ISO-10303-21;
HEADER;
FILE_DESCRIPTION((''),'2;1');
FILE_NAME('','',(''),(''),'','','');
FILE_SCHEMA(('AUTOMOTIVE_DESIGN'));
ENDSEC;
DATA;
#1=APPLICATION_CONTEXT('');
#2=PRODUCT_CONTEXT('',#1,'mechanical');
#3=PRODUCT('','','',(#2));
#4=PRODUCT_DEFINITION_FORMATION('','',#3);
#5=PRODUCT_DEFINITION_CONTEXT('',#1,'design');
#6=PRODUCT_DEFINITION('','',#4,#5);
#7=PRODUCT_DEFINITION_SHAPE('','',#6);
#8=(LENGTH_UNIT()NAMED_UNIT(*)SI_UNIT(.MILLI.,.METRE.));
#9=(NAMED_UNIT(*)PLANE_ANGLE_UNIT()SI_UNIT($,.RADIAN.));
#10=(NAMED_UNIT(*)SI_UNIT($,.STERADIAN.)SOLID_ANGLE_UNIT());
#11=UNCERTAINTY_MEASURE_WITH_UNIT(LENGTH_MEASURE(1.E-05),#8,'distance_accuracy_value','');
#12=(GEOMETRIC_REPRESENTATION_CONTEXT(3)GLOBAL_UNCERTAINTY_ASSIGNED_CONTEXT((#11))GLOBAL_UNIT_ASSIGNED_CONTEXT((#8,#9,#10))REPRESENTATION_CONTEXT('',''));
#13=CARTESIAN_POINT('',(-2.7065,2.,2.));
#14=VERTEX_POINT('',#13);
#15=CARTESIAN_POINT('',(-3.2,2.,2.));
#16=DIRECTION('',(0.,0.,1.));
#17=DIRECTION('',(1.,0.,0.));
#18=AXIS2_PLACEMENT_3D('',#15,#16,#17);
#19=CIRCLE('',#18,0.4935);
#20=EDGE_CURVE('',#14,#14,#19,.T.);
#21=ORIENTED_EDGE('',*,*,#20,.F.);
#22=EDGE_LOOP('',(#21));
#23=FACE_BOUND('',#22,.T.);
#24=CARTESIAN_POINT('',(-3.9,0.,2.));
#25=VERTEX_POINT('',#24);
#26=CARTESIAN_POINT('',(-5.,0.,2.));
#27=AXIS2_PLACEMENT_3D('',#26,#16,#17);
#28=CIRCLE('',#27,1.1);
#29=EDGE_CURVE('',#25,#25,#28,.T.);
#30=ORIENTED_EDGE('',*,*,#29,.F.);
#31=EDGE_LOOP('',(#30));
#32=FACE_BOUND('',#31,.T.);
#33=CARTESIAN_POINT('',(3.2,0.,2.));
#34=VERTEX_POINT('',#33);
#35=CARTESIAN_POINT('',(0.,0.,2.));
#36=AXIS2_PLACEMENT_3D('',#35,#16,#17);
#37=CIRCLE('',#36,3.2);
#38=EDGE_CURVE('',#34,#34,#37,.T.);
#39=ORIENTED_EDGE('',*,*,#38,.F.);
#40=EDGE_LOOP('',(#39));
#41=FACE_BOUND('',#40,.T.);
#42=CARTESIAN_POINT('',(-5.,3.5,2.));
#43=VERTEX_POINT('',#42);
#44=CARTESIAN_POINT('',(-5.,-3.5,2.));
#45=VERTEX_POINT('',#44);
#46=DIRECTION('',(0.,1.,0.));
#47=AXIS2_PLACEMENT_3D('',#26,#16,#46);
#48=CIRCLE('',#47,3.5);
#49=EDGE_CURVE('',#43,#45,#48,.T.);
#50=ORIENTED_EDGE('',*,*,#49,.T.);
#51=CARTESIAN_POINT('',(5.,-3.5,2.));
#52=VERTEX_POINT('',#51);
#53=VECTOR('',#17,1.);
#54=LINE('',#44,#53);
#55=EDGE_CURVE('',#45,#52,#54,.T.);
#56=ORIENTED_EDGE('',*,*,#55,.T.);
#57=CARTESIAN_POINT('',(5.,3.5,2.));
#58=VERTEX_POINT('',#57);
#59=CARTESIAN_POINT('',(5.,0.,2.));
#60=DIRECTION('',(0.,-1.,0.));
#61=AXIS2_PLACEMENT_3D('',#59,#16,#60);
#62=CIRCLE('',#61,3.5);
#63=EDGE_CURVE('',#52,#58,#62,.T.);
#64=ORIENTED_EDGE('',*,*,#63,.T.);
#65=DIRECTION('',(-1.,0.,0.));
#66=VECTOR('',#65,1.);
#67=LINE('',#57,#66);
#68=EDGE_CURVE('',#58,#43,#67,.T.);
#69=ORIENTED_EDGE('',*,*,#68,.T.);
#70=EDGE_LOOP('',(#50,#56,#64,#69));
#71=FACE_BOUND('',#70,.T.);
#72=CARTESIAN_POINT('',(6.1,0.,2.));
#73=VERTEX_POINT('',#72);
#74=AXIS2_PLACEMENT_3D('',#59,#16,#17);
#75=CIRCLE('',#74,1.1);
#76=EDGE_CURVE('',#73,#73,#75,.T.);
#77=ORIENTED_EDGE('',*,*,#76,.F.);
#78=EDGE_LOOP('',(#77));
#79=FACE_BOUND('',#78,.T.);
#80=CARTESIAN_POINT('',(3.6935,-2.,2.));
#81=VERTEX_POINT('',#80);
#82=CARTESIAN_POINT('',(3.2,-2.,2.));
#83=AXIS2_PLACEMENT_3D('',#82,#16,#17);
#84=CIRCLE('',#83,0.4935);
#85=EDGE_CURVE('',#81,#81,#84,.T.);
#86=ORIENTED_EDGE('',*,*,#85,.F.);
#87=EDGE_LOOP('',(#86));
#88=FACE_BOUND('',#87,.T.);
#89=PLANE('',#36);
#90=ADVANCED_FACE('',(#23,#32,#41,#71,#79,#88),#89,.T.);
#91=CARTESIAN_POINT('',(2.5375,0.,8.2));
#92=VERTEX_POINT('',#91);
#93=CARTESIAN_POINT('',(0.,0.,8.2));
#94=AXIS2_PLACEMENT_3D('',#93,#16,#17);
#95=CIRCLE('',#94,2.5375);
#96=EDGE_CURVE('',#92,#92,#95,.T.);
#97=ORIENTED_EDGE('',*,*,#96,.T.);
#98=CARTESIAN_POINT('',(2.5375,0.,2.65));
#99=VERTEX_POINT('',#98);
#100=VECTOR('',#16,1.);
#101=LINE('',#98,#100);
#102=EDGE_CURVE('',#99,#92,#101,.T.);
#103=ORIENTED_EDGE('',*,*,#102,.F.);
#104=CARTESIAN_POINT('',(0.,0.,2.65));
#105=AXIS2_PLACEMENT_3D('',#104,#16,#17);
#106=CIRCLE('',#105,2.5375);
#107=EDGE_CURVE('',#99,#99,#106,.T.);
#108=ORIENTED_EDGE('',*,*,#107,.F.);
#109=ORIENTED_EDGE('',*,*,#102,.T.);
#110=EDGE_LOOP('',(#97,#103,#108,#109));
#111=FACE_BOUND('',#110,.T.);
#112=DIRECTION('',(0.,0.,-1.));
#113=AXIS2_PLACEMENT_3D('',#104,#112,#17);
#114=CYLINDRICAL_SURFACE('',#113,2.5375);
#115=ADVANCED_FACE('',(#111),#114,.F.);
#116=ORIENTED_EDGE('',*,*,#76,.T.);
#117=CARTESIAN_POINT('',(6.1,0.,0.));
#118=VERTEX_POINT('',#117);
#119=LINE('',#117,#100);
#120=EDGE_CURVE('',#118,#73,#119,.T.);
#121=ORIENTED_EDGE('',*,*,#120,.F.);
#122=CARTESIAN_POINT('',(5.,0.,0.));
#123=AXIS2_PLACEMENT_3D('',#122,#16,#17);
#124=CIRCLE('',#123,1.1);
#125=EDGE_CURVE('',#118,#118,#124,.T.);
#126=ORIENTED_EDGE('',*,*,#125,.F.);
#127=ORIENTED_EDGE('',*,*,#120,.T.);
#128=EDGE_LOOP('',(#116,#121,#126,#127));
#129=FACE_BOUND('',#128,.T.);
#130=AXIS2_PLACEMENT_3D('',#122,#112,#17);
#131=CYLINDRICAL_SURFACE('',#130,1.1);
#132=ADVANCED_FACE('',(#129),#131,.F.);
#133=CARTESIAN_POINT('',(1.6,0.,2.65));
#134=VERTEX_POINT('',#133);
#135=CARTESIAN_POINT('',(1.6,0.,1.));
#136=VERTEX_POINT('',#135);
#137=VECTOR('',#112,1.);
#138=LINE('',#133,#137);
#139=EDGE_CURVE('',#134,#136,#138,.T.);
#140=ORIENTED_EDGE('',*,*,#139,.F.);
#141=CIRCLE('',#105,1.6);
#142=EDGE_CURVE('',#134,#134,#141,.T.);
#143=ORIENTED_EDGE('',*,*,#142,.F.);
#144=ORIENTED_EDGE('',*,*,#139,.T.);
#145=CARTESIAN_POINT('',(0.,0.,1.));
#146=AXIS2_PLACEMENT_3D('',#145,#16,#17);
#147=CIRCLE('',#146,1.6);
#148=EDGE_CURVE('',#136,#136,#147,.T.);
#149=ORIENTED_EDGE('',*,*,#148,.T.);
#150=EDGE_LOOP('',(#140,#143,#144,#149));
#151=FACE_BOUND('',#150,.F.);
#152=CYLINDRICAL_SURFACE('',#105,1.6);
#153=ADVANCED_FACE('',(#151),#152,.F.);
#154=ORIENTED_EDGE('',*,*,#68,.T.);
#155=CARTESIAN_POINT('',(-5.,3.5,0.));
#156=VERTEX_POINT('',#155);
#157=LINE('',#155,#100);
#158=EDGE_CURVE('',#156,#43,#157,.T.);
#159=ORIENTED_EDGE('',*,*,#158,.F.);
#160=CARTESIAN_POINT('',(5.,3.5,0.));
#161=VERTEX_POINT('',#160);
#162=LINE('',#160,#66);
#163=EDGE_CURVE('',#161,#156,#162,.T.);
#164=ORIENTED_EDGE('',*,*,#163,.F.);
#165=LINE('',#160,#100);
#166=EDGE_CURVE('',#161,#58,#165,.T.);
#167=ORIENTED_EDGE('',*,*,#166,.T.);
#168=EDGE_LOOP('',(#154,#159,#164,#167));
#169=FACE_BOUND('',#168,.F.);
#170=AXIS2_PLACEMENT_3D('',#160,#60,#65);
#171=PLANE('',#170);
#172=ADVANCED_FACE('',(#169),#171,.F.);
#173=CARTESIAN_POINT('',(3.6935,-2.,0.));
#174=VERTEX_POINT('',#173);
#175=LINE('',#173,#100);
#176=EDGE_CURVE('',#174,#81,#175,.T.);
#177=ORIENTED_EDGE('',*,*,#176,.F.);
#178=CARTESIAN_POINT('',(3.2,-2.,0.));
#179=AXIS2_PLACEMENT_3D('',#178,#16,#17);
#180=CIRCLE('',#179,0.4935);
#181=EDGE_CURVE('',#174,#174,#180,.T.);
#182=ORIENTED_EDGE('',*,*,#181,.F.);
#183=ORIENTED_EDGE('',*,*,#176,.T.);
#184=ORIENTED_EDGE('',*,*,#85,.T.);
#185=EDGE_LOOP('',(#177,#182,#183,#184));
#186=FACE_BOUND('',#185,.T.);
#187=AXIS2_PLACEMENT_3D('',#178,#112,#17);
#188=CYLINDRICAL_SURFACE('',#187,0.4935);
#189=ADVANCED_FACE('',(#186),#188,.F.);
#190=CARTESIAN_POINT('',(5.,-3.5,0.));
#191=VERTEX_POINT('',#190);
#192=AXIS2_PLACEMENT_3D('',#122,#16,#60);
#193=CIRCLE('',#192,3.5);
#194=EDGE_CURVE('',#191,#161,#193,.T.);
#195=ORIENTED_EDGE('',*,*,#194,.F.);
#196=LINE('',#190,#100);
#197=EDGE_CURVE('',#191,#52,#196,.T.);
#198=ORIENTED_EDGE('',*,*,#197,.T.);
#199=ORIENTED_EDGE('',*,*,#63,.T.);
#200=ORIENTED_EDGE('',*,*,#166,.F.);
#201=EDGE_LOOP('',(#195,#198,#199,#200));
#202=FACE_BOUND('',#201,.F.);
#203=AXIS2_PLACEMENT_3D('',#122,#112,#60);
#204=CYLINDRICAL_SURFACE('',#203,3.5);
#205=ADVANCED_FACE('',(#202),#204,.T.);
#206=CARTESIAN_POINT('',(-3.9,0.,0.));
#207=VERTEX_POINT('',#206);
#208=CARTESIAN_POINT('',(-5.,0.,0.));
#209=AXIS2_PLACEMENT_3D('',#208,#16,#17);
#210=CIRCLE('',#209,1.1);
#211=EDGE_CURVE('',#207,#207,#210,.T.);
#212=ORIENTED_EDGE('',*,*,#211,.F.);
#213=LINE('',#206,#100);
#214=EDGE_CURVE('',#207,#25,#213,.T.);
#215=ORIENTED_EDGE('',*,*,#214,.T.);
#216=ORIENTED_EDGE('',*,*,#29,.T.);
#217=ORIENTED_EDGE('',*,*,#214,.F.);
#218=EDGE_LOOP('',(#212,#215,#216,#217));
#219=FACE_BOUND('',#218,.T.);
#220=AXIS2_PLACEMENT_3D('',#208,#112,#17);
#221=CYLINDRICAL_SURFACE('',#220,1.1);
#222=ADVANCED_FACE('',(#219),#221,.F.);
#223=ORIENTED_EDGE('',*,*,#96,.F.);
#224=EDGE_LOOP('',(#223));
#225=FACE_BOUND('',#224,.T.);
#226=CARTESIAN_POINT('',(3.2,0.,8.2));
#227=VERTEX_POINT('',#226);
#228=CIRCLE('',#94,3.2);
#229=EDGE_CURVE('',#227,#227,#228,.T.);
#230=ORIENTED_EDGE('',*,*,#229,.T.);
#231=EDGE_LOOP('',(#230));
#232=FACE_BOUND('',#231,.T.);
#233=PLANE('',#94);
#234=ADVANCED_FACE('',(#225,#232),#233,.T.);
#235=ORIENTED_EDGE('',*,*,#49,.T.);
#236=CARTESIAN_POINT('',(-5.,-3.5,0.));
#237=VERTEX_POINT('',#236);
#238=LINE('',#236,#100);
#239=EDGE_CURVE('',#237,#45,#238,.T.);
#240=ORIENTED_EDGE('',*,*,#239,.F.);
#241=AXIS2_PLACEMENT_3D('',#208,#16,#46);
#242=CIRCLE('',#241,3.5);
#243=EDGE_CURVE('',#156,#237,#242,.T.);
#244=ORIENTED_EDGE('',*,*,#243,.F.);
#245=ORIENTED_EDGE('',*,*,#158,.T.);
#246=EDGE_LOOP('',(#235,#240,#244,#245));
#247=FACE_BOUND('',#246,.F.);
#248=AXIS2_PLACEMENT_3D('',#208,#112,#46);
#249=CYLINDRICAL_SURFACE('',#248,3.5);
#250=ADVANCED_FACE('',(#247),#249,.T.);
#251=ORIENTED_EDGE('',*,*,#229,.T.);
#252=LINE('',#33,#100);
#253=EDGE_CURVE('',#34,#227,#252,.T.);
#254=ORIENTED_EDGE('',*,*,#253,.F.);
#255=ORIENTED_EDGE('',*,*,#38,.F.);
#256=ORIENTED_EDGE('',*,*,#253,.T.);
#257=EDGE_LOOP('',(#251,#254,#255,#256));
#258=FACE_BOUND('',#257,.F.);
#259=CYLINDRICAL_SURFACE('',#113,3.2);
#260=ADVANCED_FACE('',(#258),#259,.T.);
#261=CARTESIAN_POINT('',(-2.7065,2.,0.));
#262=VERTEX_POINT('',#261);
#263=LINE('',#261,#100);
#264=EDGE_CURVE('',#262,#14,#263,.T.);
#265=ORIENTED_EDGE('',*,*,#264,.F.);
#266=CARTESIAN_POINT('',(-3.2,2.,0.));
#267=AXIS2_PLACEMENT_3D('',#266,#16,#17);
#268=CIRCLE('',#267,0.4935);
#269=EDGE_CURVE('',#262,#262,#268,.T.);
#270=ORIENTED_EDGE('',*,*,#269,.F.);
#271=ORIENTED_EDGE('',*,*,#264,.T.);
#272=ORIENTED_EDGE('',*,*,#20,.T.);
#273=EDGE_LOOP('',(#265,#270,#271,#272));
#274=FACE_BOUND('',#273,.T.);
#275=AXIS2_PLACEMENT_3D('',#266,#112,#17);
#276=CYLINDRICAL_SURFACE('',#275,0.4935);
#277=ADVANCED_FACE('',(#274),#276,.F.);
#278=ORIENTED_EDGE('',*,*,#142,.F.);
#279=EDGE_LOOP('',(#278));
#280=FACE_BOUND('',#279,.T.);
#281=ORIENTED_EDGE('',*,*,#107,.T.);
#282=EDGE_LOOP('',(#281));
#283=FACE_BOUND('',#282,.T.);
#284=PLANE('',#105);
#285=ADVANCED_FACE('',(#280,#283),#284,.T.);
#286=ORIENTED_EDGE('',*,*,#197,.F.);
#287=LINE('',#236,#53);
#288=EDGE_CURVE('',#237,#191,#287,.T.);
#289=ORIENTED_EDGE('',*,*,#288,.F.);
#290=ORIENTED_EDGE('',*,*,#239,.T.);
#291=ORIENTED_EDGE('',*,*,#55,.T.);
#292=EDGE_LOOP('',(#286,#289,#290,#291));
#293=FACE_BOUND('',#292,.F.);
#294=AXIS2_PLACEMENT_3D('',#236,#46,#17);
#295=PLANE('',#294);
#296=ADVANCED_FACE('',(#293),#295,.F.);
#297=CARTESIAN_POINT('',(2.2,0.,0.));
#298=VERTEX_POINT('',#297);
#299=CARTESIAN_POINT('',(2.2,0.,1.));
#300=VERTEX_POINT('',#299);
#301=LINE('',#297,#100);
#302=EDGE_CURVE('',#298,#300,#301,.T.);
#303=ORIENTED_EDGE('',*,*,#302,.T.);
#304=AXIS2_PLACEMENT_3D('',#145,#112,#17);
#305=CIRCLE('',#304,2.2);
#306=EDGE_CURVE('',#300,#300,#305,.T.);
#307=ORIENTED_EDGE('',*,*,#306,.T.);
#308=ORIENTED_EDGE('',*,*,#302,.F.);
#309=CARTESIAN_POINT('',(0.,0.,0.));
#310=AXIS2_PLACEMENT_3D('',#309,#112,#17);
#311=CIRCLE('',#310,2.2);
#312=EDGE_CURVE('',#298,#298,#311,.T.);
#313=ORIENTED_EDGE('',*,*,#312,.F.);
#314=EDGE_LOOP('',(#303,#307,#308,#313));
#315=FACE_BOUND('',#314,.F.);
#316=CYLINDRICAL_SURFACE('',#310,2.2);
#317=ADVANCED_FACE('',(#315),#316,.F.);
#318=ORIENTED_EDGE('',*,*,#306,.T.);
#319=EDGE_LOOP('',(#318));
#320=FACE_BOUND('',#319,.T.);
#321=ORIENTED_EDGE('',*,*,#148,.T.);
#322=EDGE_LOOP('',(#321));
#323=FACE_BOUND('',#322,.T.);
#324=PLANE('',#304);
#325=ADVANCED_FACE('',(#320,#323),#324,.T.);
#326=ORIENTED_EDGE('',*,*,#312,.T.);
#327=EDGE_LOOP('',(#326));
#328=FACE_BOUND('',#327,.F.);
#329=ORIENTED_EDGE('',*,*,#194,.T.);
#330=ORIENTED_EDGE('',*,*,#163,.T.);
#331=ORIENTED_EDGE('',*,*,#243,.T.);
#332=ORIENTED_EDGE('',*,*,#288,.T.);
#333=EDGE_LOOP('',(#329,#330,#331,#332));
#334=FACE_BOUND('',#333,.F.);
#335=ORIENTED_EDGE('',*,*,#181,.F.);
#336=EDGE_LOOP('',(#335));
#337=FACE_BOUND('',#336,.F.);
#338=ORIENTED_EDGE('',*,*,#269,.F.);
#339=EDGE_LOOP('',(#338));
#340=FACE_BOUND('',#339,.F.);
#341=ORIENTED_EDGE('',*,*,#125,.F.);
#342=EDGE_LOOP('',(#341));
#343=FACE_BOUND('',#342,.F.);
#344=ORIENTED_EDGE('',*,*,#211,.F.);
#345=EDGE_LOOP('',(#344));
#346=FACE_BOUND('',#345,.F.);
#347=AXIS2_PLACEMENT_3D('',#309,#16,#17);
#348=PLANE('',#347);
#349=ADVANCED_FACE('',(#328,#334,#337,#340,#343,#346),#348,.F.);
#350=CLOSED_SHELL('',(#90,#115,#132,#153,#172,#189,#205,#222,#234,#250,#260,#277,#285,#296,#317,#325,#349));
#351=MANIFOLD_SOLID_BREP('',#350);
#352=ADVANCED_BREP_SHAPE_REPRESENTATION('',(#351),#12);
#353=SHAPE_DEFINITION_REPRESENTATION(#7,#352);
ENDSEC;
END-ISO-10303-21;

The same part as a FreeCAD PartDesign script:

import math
import FreeCAD as App
import Part
import Sketcher

V = App.Vector
Q = App.Units.Quantity

doc = App.newDocument("Part")
params = doc.addObject("Spreadsheet::Sheet", "Params")
for row, (alias, value) in enumerate([
    ("sketch1_diameter", "2.2 mm"),
    ("sketch1_radius", "3.5 mm"),
    ("sketch1_width", "10 mm"),
    ("pad1_length", "2 mm"),
    ("sketch2_diameter", "6.4 mm"),
    ("pad2_length", "0.65 mm"),
    ("sketch3_diameter", "6.4 mm"),
    ("pad3_length", "5.55 mm"),
    ("sketch4_diameter", "3.2 mm"),
    ("pocket1_length", "25 mm"),
    ("sketch5_diameter", "4.4 mm"),
    ("pocket2_length", "1 mm"),
], start=1):
    params.set(f"A{row}", alias)
    params.set(f"B{row}", "=" + value)
    params.setAlias(f"B{row}", alias)

body = doc.addObject("PartDesign::Body", "Body")

sketch1 = doc.addObject("Sketcher::SketchObject", "Sketch")
body.addObject(sketch1)
sketch1.AttachmentSupport = (doc.XY_Plane, [""])
sketch1.MapMode = "FlatFace"
sketch1.addGeometry(Part.LineSegment(V(5, 3.5, 0), V(-5, 3.5, 0)), False)
sketch1.addGeometry(Part.ArcOfCircle(Part.Circle(V(-5, 0, 0), V(0, 0, 1), 3.5), math.radians(90), math.radians(270)), False)
sketch1.addGeometry(Part.LineSegment(V(-5, -3.5, 0), V(5, -3.5, 0)), False)
sketch1.addGeometry(Part.ArcOfCircle(Part.Circle(V(5, 0, 0), V(0, 0, 1), 3.5), math.radians(-90), math.radians(90)), False)
sketch1.addGeometry(Part.Circle(V(3.2, -2, 0), V(0, 0, 1), 0.49), False)
sketch1.addGeometry(Part.Circle(V(-5, 0, 0), V(0, 0, 1), 1.1), False)
sketch1.addGeometry(Part.Circle(V(-3.2, 2, 0), V(0, 0, 1), 0.49), False)
sketch1.addGeometry(Part.Circle(V(5, 0, 0), V(0, 0, 1), 1.1), False)
sketch1.addConstraint(Sketcher.Constraint("Tangent", 0, 2, 1, 1))
sketch1.addConstraint(Sketcher.Constraint("Tangent", 1, 2, 2, 1))
sketch1.addConstraint(Sketcher.Constraint("Tangent", 2, 2, 3, 1))
sketch1.addConstraint(Sketcher.Constraint("Tangent", 3, 2, 0, 1))
sketch1.addConstraint(Sketcher.Constraint("Horizontal", 0))
sketch1.addConstraint(Sketcher.Constraint("Horizontal", 2))
sketch1.addConstraint(Sketcher.Constraint("Coincident", 5, 3, 1, 3))
sketch1.addConstraint(Sketcher.Constraint("Coincident", 7, 3, 3, 3))
sketch1.addConstraint(Sketcher.Constraint("Equal", 4, 6))
sketch1.addConstraint(Sketcher.Constraint("Equal", 5, 7))
sketch1.addConstraint(Sketcher.Constraint("Symmetric", 1, 3, 3, 3, -1, 1))
sketch1.addConstraint(Sketcher.Constraint("Symmetric", 4, 3, 6, 3, -1, 1))
sketch1.addConstraint(Sketcher.Constraint("Diameter", 5, Q("2.2 mm")))
sketch1.addConstraint(Sketcher.Constraint("Radius", 1, Q("3.5 mm")))
sketch1.addConstraint(Sketcher.Constraint("DistanceX", 0, 2, 0, 1, Q("10 mm")))
sketch1.addConstraint(Sketcher.Constraint("Diameter", 4, Q("0.987 mm")))
sketch1.addConstraint(Sketcher.Constraint("DistanceY", 4, 3, -1, 1, Q("2 mm")))
sketch1.addConstraint(Sketcher.Constraint("DistanceX", -1, 1, 4, 3, Q("3.2 mm")))
sketch1.setExpression("Constraints[12]", "Params.sketch1_diameter")
sketch1.setExpression("Constraints[13]", "Params.sketch1_radius")
sketch1.setExpression("Constraints[14]", "Params.sketch1_width")
pad1 = doc.addObject("PartDesign::Pad", "Pad")
body.addObject(pad1)
pad1.Profile = sketch1
pad1.setExpression("Length", "Params.pad1_length")

sketch2 = doc.addObject("Sketcher::SketchObject", "Sketch001")
body.addObject(sketch2)
sketch2.AttachmentSupport = (doc.XY_Plane, [""])
sketch2.MapMode = "FlatFace"
sketch2.AttachmentOffset = App.Placement(V(0, 0, 2), App.Rotation())
sketch2.addGeometry(Part.Circle(V(0, 0, 0), V(0, 0, 1), 3.2), False)
sketch2.addConstraint(Sketcher.Constraint("Coincident", 0, 3, -1, 1))
sketch2.addConstraint(Sketcher.Constraint("Diameter", 0, Q("6.4 mm")))
sketch2.setExpression("Constraints[1]", "Params.sketch2_diameter")
pad2 = doc.addObject("PartDesign::Pad", "Pad001")
body.addObject(pad2)
pad2.Profile = sketch2
pad2.setExpression("Length", "Params.pad2_length")

sketch3 = doc.addObject("Sketcher::SketchObject", "Sketch002")
body.addObject(sketch3)
sketch3.AttachmentSupport = (doc.XY_Plane, [""])
sketch3.MapMode = "FlatFace"
sketch3.AttachmentOffset = App.Placement(V(0, 0, 2.65), App.Rotation())
sketch3.addGeometry(Part.Circle(V(0, 0, 0), V(0, 0, 1), 3.2), False)
sketch3.addGeometry(Part.Circle(V(0, 0, 0), V(0, 0, 1), 2.5), False)
sketch3.addConstraint(Sketcher.Constraint("Coincident", 0, 3, -1, 1))
sketch3.addConstraint(Sketcher.Constraint("Coincident", 1, 3, -1, 1))
sketch3.addConstraint(Sketcher.Constraint("Diameter", 0, Q("6.4 mm")))
sketch3.addConstraint(Sketcher.Constraint("Diameter", 1, Q("5.075 mm")))
sketch3.setExpression("Constraints[2]", "Params.sketch3_diameter")
pad3 = doc.addObject("PartDesign::Pad", "Pad002")
body.addObject(pad3)
pad3.Profile = sketch3
pad3.setExpression("Length", "Params.pad3_length")

sketch4 = doc.addObject("Sketcher::SketchObject", "Sketch003")
body.addObject(sketch4)
sketch4.AttachmentSupport = (doc.XY_Plane, [""])
sketch4.MapMode = "FlatFace"
sketch4.AttachmentOffset = App.Placement(V(0, 0, 2.65), App.Rotation())
sketch4.addGeometry(Part.Circle(V(0, 0, 0), V(0, 0, 1), 1.6), False)
sketch4.addConstraint(Sketcher.Constraint("Coincident", 0, 3, -1, 1))
sketch4.addConstraint(Sketcher.Constraint("Diameter", 0, Q("3.2 mm")))
sketch4.setExpression("Constraints[1]", "Params.sketch4_diameter")
pocket1 = doc.addObject("PartDesign::Pocket", "Pocket")
body.addObject(pocket1)
pocket1.Profile = sketch4
pocket1.setExpression("Length", "Params.pocket1_length")

sketch5 = doc.addObject("Sketcher::SketchObject", "Sketch004")
body.addObject(sketch5)
sketch5.AttachmentSupport = (doc.XY_Plane, [""])
sketch5.MapMode = "FlatFace"
sketch5.addGeometry(Part.Circle(V(0, 0, 0), V(0, 0, 1), 2.2), False)
sketch5.addConstraint(Sketcher.Constraint("Coincident", 0, 3, -1, 1))
sketch5.addConstraint(Sketcher.Constraint("Diameter", 0, Q("4.4 mm")))
sketch5.setExpression("Constraints[1]", "Params.sketch5_diameter")
pocket2 = doc.addObject("PartDesign::Pocket", "Pocket001")
body.addObject(pocket2)
pocket2.Profile = sketch5
pocket2.setExpression("Length", "Params.pocket2_length")
pocket2.Reversed = True

doc.recompute()
